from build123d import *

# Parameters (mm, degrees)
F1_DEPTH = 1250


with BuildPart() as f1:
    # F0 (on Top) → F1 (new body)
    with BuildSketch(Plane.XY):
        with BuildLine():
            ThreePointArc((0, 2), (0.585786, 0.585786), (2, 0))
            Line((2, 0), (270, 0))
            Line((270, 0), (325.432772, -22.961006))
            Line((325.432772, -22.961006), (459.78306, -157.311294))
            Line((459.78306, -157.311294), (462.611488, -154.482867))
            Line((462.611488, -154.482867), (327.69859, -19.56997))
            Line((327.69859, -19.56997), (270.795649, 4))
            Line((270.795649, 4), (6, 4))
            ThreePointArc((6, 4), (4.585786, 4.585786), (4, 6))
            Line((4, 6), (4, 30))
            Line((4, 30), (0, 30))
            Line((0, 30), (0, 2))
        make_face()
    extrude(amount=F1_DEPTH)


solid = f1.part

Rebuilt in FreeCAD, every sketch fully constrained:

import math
import FreeCAD as App
import Part
import Sketcher

V = App.Vector
Q = App.Units.Quantity

doc = App.newDocument("Part")
body = doc.addObject("PartDesign::Body", "Body")

# Sketch on XY plane
sketch1 = doc.addObject("Sketcher::SketchObject", "Sketch")
body.addObject(sketch1)
sketch1.AttachmentSupport = (doc.XY_Plane, [""])
sketch1.MapMode = "FlatFace"
sketch1.addGeometry([
    Part.ArcOfCircle(Part.Circle(V(2, 2, 0), V(0, 0, 1), 2), math.radians(180), math.radians(270)),  # 0
    Part.LineSegment(V(2, 0, 0), V(270, 0, 0)),  # 1
    Part.LineSegment(V(270, 0, 0), V(325.4, -23, 0)),  # 2
    Part.LineSegment(V(325.4, -23, 0), V(459.8, -157.3, 0)),  # 3
    Part.LineSegment(V(459.8, -157.3, 0), V(462.6, -154.5, 0)),  # 4
    Part.LineSegment(V(462.6, -154.5, 0), V(327.7, -19.6, 0)),  # 5
    Part.LineSegment(V(327.7, -19.6, 0), V(270.8, 4, 0)),  # 6
    Part.LineSegment(V(270.8, 4, 0), V(6, 4, 0)),  # 7
    Part.ArcOfCircle(Part.Circle(V(6, 6, 0), V(0, 0, 1), 2), math.radians(180), math.radians(270)),  # 8
    Part.LineSegment(V(4, 6, 0), V(4, 30, 0)),  # 9
    Part.LineSegment(V(4, 30, 0), V(0, 30, 0)),  # 10
    Part.LineSegment(V(0, 30, 0), V(0, 2, 0)),  # 11
], False)
sketch1.addConstraint([
    Sketcher.Constraint("Tangent", 0, 2, 1, 1),
    Sketcher.Constraint("Coincident", 1, 2, 2, 1),
    Sketcher.Constraint("Coincident", 2, 2, 3, 1),
    Sketcher.Constraint("Coincident", 3, 2, 4, 1),
    Sketcher.Constraint("Coincident", 4, 2, 5, 1),
    Sketcher.Constraint("Coincident", 5, 2, 6, 1),
    Sketcher.Constraint("Coincident", 6, 2, 7, 1),
    Sketcher.Constraint("Tangent", 7, 2, 8, 2),
    Sketcher.Constraint("Tangent", 8, 1, 9, 1),
    Sketcher.Constraint("Coincident", 9, 2, 10, 1),
    Sketcher.Constraint("Coincident", 10, 2, 11, 1),
    Sketcher.Constraint("Tangent", 11, 2, 0, 1),
    Sketcher.Constraint("Horizontal", 1),
    Sketcher.Constraint("Horizontal", 7),
    Sketcher.Constraint("Vertical", 9),
    Sketcher.Constraint("Horizontal", 10),
    Sketcher.Constraint("Vertical", 11),
    Sketcher.Constraint("Equal", 0, 8),
    Sketcher.Constraint("PointOnObject", 0, 2, -1),
    Sketcher.Constraint("PointOnObject", 10, 2, -2),
    Sketcher.Constraint("Perpendicular", 3, 4),
    Sketcher.Constraint("Perpendicular", 4, 5),
    Sketcher.Constraint("Parallel", 2, 6),
    Sketcher.Constraint("Radius", 0, 1.999999),
    Sketcher.Constraint("DistanceX", 1, 1, 1, 2, 268.0),
    Sketcher.Constraint("DistanceX", 10, 2, 10, 1, 4.0),
    Sketcher.Constraint("DistanceY", 9, 1, 9, 2, 24.0),
    Sketcher.Constraint("DistanceY", 11, 2, 11, 1, 28.0),
    Sketcher.Constraint("Angle", 3, Q("-45 deg")),
    Sketcher.Constraint("Distance", 2, 60.0),
    Sketcher.Constraint("Distance", 3, 189.999999),
    Sketcher.Constraint("Distance", 4, 4.000001),
    Sketcher.Constraint("Angle", 2, Q("-22.5 deg")),
    Sketcher.Constraint("Distance", 6, 61.5913),
])
pad1 = doc.addObject("PartDesign::Pad", "Pad")
body.addObject(pad1)
pad1.Profile = sketch1
pad1.Length = 1250

doc.recompute()
